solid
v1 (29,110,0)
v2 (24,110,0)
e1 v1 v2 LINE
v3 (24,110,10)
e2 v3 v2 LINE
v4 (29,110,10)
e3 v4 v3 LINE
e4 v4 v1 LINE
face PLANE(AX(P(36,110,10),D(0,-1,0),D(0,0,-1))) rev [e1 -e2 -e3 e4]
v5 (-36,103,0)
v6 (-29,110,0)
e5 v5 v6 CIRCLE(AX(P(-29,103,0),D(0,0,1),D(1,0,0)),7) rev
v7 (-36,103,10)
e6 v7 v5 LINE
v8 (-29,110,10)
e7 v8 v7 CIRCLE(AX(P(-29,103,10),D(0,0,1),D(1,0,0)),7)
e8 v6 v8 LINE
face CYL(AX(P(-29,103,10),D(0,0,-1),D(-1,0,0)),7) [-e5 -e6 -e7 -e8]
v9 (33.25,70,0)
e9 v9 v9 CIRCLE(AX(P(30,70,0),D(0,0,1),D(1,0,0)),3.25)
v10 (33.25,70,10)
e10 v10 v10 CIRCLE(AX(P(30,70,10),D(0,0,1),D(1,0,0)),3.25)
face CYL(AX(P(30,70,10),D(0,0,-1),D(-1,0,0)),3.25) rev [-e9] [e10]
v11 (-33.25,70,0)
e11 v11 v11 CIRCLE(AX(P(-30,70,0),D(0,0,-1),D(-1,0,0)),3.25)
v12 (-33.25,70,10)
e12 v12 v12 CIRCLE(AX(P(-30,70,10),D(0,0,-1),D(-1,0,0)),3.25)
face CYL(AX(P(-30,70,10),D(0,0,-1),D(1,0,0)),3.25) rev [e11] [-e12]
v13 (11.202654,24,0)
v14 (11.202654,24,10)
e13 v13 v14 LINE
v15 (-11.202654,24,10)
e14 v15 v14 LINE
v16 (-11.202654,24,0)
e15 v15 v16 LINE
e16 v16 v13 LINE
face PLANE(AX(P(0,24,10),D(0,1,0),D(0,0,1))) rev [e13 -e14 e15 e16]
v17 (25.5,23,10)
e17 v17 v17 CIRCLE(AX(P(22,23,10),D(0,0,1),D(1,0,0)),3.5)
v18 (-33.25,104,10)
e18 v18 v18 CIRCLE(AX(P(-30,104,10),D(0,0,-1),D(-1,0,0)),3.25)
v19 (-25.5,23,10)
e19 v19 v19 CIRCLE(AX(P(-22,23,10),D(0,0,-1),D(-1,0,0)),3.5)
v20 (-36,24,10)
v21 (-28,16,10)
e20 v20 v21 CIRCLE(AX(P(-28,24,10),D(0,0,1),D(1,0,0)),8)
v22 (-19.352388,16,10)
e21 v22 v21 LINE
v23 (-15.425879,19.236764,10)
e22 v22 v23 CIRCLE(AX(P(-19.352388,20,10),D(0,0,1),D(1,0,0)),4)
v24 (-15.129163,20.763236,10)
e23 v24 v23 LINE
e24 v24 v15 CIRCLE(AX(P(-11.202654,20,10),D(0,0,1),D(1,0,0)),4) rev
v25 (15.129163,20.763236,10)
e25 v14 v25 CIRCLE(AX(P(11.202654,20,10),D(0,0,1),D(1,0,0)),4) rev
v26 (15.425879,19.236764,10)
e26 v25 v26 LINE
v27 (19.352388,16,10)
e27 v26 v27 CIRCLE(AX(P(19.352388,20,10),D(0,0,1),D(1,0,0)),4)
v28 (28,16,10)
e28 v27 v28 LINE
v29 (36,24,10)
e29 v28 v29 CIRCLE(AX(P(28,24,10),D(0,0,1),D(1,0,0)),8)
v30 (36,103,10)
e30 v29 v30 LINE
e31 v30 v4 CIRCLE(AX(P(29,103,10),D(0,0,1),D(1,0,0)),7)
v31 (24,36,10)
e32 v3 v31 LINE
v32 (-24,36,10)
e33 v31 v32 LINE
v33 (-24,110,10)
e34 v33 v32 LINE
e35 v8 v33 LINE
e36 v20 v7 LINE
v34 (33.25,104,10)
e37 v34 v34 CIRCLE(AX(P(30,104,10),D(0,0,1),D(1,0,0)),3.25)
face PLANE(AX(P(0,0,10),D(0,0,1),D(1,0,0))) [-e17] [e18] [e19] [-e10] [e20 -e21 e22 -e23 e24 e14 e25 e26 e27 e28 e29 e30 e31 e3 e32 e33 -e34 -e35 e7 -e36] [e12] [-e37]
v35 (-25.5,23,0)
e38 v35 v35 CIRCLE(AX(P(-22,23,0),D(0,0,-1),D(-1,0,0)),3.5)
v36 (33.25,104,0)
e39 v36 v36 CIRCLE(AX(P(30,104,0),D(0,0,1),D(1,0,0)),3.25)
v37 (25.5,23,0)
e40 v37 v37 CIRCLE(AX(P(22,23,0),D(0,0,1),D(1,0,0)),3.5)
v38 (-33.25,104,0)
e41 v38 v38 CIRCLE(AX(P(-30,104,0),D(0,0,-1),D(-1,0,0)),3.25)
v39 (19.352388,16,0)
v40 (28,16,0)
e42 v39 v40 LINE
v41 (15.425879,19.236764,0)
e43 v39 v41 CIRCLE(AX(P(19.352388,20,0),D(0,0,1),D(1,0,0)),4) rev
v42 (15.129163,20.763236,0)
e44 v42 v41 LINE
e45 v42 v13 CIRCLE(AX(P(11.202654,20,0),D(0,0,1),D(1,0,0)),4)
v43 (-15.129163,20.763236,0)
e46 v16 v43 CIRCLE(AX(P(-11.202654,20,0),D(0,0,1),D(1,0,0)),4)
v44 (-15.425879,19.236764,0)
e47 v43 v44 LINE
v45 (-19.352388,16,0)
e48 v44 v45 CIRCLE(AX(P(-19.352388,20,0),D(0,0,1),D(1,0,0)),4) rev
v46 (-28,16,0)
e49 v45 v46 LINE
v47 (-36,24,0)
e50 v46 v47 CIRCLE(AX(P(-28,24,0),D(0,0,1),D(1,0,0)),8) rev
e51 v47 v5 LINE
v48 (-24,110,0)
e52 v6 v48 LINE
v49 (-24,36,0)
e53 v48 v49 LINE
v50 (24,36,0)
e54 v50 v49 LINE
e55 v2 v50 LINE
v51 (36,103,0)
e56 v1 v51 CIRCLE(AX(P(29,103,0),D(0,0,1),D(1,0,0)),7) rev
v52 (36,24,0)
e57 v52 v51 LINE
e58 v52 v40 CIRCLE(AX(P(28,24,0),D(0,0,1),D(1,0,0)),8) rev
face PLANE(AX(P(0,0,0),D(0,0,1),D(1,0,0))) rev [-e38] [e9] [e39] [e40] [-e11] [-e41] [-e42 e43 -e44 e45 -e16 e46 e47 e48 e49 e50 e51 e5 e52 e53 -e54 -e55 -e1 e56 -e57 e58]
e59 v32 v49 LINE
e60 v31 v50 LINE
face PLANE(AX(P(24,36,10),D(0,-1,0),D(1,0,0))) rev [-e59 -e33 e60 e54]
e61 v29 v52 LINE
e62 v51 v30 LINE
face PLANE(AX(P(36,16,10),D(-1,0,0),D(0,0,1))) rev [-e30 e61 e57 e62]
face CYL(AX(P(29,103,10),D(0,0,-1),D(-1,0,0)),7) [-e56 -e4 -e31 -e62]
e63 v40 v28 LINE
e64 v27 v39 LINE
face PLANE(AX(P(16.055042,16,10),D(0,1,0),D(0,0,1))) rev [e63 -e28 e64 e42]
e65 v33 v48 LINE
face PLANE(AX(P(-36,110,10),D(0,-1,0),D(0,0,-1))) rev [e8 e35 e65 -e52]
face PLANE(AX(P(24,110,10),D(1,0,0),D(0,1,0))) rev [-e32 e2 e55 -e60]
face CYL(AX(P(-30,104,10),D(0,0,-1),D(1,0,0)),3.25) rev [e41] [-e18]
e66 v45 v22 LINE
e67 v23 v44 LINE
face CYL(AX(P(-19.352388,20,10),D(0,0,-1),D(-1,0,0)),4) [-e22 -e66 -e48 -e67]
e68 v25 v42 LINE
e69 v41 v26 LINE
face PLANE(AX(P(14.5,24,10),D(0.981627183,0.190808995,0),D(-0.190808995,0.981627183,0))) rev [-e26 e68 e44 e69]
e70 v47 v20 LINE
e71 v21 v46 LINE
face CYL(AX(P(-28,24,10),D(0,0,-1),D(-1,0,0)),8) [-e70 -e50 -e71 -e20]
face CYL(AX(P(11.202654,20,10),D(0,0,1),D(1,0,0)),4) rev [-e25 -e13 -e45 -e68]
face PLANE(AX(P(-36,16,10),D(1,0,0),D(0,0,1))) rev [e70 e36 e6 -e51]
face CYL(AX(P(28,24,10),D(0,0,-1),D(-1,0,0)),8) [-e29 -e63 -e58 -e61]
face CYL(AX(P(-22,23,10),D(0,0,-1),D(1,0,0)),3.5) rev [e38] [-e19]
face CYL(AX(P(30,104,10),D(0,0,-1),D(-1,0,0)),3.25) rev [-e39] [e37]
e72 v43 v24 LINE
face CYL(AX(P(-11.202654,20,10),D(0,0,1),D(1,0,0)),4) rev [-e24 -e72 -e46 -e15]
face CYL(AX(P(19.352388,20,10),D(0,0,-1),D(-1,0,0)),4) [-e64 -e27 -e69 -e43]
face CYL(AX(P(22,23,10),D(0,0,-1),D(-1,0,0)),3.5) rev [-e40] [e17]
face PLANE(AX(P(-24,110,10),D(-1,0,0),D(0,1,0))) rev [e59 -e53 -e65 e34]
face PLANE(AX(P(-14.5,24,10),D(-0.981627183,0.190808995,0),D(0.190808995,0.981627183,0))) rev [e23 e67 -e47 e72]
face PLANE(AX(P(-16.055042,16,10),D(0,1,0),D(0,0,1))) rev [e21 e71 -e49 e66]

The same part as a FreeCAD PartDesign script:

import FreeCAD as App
import Part
import Sketcher
Q = App.Units.Quantity


def edges_at(feature, points):
    """Names of the edges that pass closest to the given points."""
    edges = feature.Shape.Edges
    near = lambda p: min(range(len(edges)), key=lambda i: edges[i].distToShape(Part.Vertex(*p))[0])
    return sorted({f"Edge{near(p) + 1}" for p in points})

doc = App.newDocument("Part")
body = doc.addObject("PartDesign::Body", "Body")

sketch1 = doc.addObject("Sketcher::SketchObject", "Sketch")
body.addObject(sketch1)
sketch1.AttachmentSupport = (doc.XY_Plane, [""])
sketch1.MapMode = "FlatFace"
sketch1.addGeometry(Part.LineSegment(App.Vector(24, 110, 0), App.Vector(24, 36, 0)), False)
sketch1.addGeometry(Part.LineSegment(App.Vector(24, 36, 0), App.Vector(0, 36, 0)), False)
sketch1.addGeometry(Part.LineSegment(App.Vector(0, 36, 0), App.Vector(0, 24, 0)), False)
sketch1.addGeometry(Part.LineSegment(App.Vector(0, 24, 0), App.Vector(14.5, 24, 0)), False)
sketch1.addGeometry(Part.LineSegment(App.Vector(14.5, 24, 0), App.Vector(16.1, 16, 0)), False)
sketch1.addGeometry(Part.LineSegment(App.Vector(16.1, 16, 0), App.Vector(36, 16, 0)), False)
sketch1.addGeometry(Part.LineSegment(App.Vector(36, 16, 0), App.Vector(36, 110, 0)), False)
sketch1.addGeometry(Part.LineSegment(App.Vector(36, 110, 0), App.Vector(24, 110, 0)), False)
sketch1.addGeometry(Part.Circle(App.Vector(22, 23, 0), App.Vector(0, 0, 1), 3.5), False)
sketch1.addGeometry(Part.Circle(App.Vector(30, 70, 0), App.Vector(0, 0, 1), 3.2), False)
sketch1.addGeometry(Part.Circle(App.Vector(30, 104, 0), App.Vector(0, 0, 1), 3.2), False)
sketch1.addConstraint(Sketcher.Constraint("Coincident", 0, 2, 1, 1))
sketch1.addConstraint(Sketcher.Constraint("Coincident", 1, 2, 2, 1))
sketch1.addConstraint(Sketcher.Constraint("Coincident", 2, 2, 3, 1))
sketch1.addConstraint(Sketcher.Constraint("Coincident", 3, 2, 4, 1))
sketch1.addConstraint(Sketcher.Constraint("Coincident", 4, 2, 5, 1))
sketch1.addConstraint(Sketcher.Constraint("Coincident", 5, 2, 6, 1))
sketch1.addConstraint(Sketcher.Constraint("Coincident", 6, 2, 7, 1))
sketch1.addConstraint(Sketcher.Constraint("Coincident", 7, 2, 0, 1))
sketch1.addConstraint(Sketcher.Constraint("Vertical", 0))
sketch1.addConstraint(Sketcher.Constraint("Horizontal", 1))
sketch1.addConstraint(Sketcher.Constraint("Vertical", 2))
sketch1.addConstraint(Sketcher.Constraint("Horizontal", 3))
sketch1.addConstraint(Sketcher.Constraint("Horizontal", 5))
sketch1.addConstraint(Sketcher.Constraint("Vertical", 6))
sketch1.addConstraint(Sketcher.Constraint("Horizontal", 7))
sketch1.addConstraint(Sketcher.Constraint("Equal", 9, 10))
sketch1.addConstraint(Sketcher.Constraint("PointOnObject", 1, 2, -2))
sketch1.addConstraint(Sketcher.Constraint("Vertical", 9, 3, 10, 3))
sketch1.addConstraint(Sketcher.Constraint("Equal", 7, 2))
sketch1.addConstraint(Sketcher.Constraint("Diameter", 8, 7.0))
sketch1.addConstraint(Sketcher.Constraint("Diameter", 9, 6.5))
sketch1.addConstraint(Sketcher.Constraint("DistanceX", 1, 2, 1, 1, 24.0))
sketch1.addConstraint(Sketcher.Constraint("DistanceX", 7, 2, 7, 1, 12.0))
sketch1.addConstraint(Sketcher.Constraint("DistanceY", 0, 2, 0, 1, 74.0))
sketch1.addConstraint(Sketcher.Constraint("DistanceY", 6, 1, 6, 2, 94.0))
sketch1.addConstraint(Sketcher.Constraint("Angle", 4, Q("-79 deg")))
sketch1.addConstraint(Sketcher.Constraint("DistanceX", 3, 1, 3, 2, 14.5))
sketch1.addConstraint(Sketcher.Constraint("DistanceX", -1, 1, 8, 3, 22.0))
sketch1.addConstraint(Sketcher.Constraint("DistanceY", -1, 1, 8, 3, 23.0))
sketch1.addConstraint(Sketcher.Constraint("DistanceX", -1, 1, 9, 3, 30.0))
sketch1.addConstraint(Sketcher.Constraint("DistanceY", -1, 1, 9, 3, 70.0))
sketch1.addConstraint(Sketcher.Constraint("DistanceY", -1, 1, 10, 3, 104.0))
sketch1.addConstraint(Sketcher.Constraint("DistanceY", -1, 1, 0, 2, 36.0))
pad1 = doc.addObject("PartDesign::Pad", "Pad")
body.addObject(pad1)
pad1.Profile = sketch1
pad1.Length = 10
doc.recompute()

mirrored = doc.addObject("PartDesign::Mirrored", "Mirrored")
body.addObject(mirrored)
mirrored.Originals = [pad1]
mirrored.MirrorPlane = (doc.YZ_Plane, [""])
body.Tip = mirrored
doc.recompute()

fillet = doc.addObject("PartDesign::Fillet", "Fillet")
body.addObject(fillet)
fillet.Base = (mirrored, edges_at(mirrored, [
    (16.055, 16, 5),
    (14.5, 24, 5),
    (-14.5, 24, 5),
    (-16.055, 16, 5),
]))
fillet.Radius = 4
doc.recompute()

fillet2 = doc.addObject("PartDesign::Fillet", "Fillet001")
body.addObject(fillet2)
fillet2.Base = (fillet, edges_at(fillet, [(36, 16, 5), (-36, 16, 5)]))
fillet2.Radius = 8
doc.recompute()

fillet3 = doc.addObject("PartDesign::Fillet", "Fillet002")
body.addObject(fillet3)
fillet3.Base = (fillet2, edges_at(fillet2, [(36, 110, 5), (-36, 110, 5)]))
fillet3.Radius = 7

doc.recompute()
